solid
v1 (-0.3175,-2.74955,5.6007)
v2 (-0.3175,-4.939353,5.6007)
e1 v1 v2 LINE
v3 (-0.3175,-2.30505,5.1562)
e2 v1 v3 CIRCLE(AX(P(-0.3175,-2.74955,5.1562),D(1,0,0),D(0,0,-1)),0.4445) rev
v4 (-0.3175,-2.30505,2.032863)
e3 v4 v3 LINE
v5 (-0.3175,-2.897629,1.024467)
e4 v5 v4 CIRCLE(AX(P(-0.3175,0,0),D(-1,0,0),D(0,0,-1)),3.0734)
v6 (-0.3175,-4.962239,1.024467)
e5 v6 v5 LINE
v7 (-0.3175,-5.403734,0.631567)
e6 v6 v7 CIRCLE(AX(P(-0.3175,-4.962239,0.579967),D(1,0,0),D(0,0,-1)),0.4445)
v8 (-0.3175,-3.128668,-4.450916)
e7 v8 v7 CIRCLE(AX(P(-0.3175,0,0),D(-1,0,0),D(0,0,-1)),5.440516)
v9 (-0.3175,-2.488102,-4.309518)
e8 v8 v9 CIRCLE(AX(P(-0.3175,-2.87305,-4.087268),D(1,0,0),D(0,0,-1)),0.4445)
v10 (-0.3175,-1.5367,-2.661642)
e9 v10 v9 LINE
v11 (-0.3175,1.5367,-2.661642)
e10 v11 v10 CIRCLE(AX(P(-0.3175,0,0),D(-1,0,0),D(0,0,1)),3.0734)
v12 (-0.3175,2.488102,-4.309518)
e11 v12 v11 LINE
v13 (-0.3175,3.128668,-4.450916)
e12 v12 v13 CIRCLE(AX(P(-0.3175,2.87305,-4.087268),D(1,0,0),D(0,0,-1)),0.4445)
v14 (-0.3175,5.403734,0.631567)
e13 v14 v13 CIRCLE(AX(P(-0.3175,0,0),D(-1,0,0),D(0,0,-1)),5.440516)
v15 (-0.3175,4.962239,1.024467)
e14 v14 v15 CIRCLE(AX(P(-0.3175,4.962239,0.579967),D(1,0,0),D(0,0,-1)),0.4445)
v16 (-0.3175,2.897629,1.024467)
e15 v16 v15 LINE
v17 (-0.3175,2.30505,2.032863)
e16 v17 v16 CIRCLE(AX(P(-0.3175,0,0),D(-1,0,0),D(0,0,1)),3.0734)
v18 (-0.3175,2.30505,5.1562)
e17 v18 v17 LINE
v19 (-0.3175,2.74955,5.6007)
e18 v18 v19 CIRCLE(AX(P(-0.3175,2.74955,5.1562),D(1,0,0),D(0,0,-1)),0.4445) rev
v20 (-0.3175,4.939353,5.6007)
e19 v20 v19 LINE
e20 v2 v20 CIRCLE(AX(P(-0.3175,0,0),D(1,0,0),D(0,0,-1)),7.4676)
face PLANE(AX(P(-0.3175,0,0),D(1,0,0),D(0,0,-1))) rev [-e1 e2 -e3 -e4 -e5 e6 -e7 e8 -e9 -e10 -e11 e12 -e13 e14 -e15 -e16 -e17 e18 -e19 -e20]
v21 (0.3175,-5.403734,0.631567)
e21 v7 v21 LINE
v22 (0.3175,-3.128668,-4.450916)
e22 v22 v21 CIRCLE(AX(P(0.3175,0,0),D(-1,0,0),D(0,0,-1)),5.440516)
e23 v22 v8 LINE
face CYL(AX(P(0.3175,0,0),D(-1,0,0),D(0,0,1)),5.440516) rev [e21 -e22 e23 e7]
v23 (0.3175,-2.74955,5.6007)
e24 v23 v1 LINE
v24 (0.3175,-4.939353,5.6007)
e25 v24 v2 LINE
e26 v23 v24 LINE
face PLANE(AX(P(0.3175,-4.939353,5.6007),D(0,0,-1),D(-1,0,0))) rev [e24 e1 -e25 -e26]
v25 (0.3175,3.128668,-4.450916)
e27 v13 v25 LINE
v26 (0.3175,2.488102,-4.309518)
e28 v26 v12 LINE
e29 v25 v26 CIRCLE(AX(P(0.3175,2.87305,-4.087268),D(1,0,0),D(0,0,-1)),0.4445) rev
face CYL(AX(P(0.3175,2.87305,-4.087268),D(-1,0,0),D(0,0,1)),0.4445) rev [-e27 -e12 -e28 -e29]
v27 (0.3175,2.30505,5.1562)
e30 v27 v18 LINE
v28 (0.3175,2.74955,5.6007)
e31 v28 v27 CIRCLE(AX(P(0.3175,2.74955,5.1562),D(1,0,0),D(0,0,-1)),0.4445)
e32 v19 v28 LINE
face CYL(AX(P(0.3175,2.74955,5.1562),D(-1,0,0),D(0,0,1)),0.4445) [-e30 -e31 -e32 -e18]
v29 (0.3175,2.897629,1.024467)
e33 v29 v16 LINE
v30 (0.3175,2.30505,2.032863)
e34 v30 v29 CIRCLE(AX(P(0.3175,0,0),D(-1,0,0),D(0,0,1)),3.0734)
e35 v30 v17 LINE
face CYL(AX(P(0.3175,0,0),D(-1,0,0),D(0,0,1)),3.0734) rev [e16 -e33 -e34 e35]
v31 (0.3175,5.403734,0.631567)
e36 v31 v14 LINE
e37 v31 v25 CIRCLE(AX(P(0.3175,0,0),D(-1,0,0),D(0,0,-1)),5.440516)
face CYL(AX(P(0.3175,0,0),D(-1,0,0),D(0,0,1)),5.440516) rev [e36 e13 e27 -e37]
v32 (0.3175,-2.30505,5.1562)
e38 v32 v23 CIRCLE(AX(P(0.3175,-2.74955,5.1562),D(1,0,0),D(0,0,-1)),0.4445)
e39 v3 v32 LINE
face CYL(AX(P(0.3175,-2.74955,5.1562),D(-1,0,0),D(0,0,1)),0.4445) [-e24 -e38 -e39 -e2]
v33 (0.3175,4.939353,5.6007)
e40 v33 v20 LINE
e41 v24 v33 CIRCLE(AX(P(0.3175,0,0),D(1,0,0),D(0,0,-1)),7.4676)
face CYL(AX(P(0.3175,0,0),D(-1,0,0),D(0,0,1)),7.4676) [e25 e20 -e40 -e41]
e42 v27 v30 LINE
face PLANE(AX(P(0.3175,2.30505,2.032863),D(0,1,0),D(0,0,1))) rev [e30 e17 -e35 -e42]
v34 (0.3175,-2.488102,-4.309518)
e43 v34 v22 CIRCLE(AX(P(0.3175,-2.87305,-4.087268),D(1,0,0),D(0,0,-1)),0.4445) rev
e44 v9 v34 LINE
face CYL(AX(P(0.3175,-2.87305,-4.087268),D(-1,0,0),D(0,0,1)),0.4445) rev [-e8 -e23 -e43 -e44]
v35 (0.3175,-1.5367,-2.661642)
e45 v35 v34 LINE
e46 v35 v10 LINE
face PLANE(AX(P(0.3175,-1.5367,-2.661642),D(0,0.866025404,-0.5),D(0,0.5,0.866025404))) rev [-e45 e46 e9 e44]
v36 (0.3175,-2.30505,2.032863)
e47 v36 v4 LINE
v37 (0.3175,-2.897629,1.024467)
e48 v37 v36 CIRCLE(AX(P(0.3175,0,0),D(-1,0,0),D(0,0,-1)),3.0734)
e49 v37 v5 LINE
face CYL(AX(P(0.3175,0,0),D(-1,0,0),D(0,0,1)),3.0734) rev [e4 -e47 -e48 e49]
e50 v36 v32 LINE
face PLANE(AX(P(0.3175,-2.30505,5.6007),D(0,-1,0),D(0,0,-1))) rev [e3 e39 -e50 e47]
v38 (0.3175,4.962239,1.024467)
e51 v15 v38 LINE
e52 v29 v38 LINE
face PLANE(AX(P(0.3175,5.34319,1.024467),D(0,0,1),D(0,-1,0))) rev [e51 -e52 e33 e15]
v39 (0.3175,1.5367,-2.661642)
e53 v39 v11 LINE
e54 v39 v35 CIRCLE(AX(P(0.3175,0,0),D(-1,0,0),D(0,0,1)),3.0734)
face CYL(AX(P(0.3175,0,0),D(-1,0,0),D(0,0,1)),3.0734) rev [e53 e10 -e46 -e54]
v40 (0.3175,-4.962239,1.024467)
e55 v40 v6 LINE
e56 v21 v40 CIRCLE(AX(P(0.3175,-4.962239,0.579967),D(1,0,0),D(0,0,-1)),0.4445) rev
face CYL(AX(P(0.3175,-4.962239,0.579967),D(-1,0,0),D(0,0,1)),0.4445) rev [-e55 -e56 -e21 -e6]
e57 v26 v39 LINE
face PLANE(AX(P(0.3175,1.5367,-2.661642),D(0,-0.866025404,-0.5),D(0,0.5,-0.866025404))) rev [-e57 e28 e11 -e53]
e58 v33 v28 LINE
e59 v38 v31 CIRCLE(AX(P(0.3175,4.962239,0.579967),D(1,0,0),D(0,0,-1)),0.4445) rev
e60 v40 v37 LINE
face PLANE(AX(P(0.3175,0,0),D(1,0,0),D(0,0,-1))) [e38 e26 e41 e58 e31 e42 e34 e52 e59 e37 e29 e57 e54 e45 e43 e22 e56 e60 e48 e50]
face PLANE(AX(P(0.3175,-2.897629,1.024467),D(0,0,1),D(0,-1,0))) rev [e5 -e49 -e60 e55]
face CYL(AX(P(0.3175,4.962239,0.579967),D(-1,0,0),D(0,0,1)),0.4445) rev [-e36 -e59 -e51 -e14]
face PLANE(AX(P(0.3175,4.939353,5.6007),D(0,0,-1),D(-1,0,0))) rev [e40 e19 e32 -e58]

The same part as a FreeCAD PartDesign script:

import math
import FreeCAD as App
import Part
import Sketcher

V = App.Vector
Q = App.Units.Quantity


def edges_at(feature, points):
    """Names of the edges that pass closest to the given points."""
    edges = feature.Shape.Edges
    near = lambda p: min(range(len(edges)), key=lambda i: edges[i].distToShape(Part.Vertex(*p))[0])
    return sorted({f"Edge{near(p) + 1}" for p in points})

doc = App.newDocument("Part")
body = doc.addObject("PartDesign::Body", "Body")

sketch1 = body.newObject("Sketcher::SketchObject", "Sketch")
sketch1.AttachmentSupport = (doc.getObject("YZ_Plane"), [""])
sketch1.MapMode = "FlatFace"
sketch1.addGeometry(Part.LineSegment(V(2.3, 5.6, 0), V(2.3, 2, 0)), False)
sketch1.addGeometry(Part.ArcOfCircle(Part.Circle(V(0, 0, 0), V(0, 0, 1), 3.1), math.radians(19), math.radians(41)), False)
sketch1.addGeometry(Part.LineSegment(V(2.9, 1, 0), V(5.3, 1, 0)), False)
sketch1.addGeometry(Part.ArcOfCircle(Part.Circle(V(0, 0, 0), V(0, 0, 1), 5.4), math.radians(-60), math.radians(11)), False)
sketch1.addGeometry(Part.LineSegment(V(2.7, -4.7, 0), V(1.5, -2.7, 0)), False)
sketch1.addGeometry(Part.ArcOfCircle(Part.Circle(V(0, 0, 0), V(0, 0, 1), 3.1), math.radians(-120), math.radians(-60)), False)
sketch1.addGeometry(Part.LineSegment(V(-1.5, -2.7, 0), V(-2.7, -4.7, 0)), False)
sketch1.addGeometry(Part.ArcOfCircle(Part.Circle(V(0, 0, 0), V(0, 0, 1), 5.4), math.radians(169), math.radians(240)), False)
sketch1.addGeometry(Part.LineSegment(V(-5.3, 1, 0), V(-2.9, 1, 0)), False)
sketch1.addGeometry(Part.ArcOfCircle(Part.Circle(V(0, 0, 0), V(0, 0, 1), 3.1), math.radians(139), math.radians(161)), False)
sketch1.addGeometry(Part.LineSegment(V(-2.3, 2, 0), V(-2.3, 5.6, 0)), False)
sketch1.addGeometry(Part.LineSegment(V(-2.3, 5.6, 0), V(-4.9, 5.6, 0)), False)
sketch1.addGeometry(Part.ArcOfCircle(Part.Circle(V(0, 0, 0), V(0, 0, 1), 7.5), math.radians(131), math.radians(409)), False)
sketch1.addGeometry(Part.LineSegment(V(4.9, 5.6, 0), V(2.3, 5.6, 0)), False)
sketch1.addConstraint(Sketcher.Constraint("Coincident", 0, 2, 1, 2))
sketch1.addConstraint(Sketcher.Constraint("Coincident", 1, 1, 2, 1))
sketch1.addConstraint(Sketcher.Constraint("Coincident", 2, 2, 3, 2))
sketch1.addConstraint(Sketcher.Constraint("Coincident", 3, 1, 4, 1))
sketch1.addConstraint(Sketcher.Constraint("Coincident", 4, 2, 5, 2))
sketch1.addConstraint(Sketcher.Constraint("Coincident", 5, 1, 6, 1))
sketch1.addConstraint(Sketcher.Constraint("Coincident", 6, 2, 7, 2))
sketch1.addConstraint(Sketcher.Constraint("Coincident", 7, 1, 8, 1))
sketch1.addConstraint(Sketcher.Constraint("Coincident", 8, 2, 9, 2))
sketch1.addConstraint(Sketcher.Constraint("Coincident", 9, 1, 10, 1))
sketch1.addConstraint(Sketcher.Constraint("Coincident", 10, 2, 11, 1))
sketch1.addConstraint(Sketcher.Constraint("Coincident", 11, 2, 12, 1))
sketch1.addConstraint(Sketcher.Constraint("Coincident", 12, 2, 13, 1))
sketch1.addConstraint(Sketcher.Constraint("Coincident", 13, 2, 0, 1))
sketch1.addConstraint(Sketcher.Constraint("Vertical", 0))
sketch1.addConstraint(Sketcher.Constraint("Horizontal", 2))
sketch1.addConstraint(Sketcher.Constraint("Horizontal", 8))
sketch1.addConstraint(Sketcher.Constraint("Vertical", 10))
sketch1.addConstraint(Sketcher.Constraint("Horizontal", 11))
sketch1.addConstraint(Sketcher.Constraint("Horizontal", 13))
sketch1.addConstraint(Sketcher.Constraint("Coincident", 1, 3, -1, 1))
sketch1.addConstraint(Sketcher.Constraint("Coincident", 3, 3, -1, 1))
sketch1.addConstraint(Sketcher.Constraint("Coincident", 5, 3, -1, 1))
sketch1.addConstraint(Sketcher.Constraint("Coincident", 7, 3, -1, 1))
sketch1.addConstraint(Sketcher.Constraint("Coincident", 9, 3, -1, 1))
sketch1.addConstraint(Sketcher.Constraint("Coincident", 12, 3, -1, 1))
sketch1.addConstraint(Sketcher.Constraint("Equal", 1, 5))
sketch1.addConstraint(Sketcher.Constraint("Equal", 3, 7))
sketch1.addConstraint(Sketcher.Constraint("Equal", 5, 9))
sketch1.addConstraint(Sketcher.Constraint("Symmetric", 10, 2, 13, 2, -2))
sketch1.addConstraint(Sketcher.Constraint("Horizontal", 4, 2, 5, 1))
sketch1.addConstraint(Sketcher.Constraint("Horizontal", 3, 1, 6, 2))
sketch1.addConstraint(Sketcher.Constraint("Horizontal", 2, 2, 7, 1))
sketch1.addConstraint(Sketcher.Constraint("Angle", 4, Q("120 deg")))
sketch1.addConstraint(Sketcher.Constraint("Radius", 1, Q("0.121 in")))
sketch1.addConstraint(Sketcher.Constraint("Radius", 12, Q("0.294 in")))
sketch1.addConstraint(Sketcher.Constraint("DistanceX", 5, 1, 4, 2, Q("0.121 in")))
sketch1.addConstraint(Sketcher.Constraint("DistanceY", -1, 1, 10, 2, Q("0.2205 in")))
sketch1.addConstraint(Sketcher.Constraint("Radius", 3, 5.440516))
sketch1.addConstraint(Sketcher.Constraint("DistanceX", 10, 2, 0, 2, Q("0.1815 in")))
sketch1.addConstraint(Sketcher.Constraint("DistanceX", 2, 1, 2, 2, 2.445561))
pad1 = body.newObject("PartDesign::Pad", "Pad")
pad1.Profile = sketch1
pad1.Length = Q("0.025 in")
pad1.Midplane = True
doc.recompute()

fillet = body.newObject("PartDesign::Fillet", "Fillet")
fillet.Base = (pad1, edges_at(pad1, [
    (0, -2.305, 5.601),
    (0, -5.343, 1.024),
    (0, -2.72, -4.712),
    (0, 2.72, -4.712),
    (0, 5.343, 1.024),
    (0, 2.305, 5.601),
]))
fillet.Radius = Q("0.0175 in")

doc.recompute()
